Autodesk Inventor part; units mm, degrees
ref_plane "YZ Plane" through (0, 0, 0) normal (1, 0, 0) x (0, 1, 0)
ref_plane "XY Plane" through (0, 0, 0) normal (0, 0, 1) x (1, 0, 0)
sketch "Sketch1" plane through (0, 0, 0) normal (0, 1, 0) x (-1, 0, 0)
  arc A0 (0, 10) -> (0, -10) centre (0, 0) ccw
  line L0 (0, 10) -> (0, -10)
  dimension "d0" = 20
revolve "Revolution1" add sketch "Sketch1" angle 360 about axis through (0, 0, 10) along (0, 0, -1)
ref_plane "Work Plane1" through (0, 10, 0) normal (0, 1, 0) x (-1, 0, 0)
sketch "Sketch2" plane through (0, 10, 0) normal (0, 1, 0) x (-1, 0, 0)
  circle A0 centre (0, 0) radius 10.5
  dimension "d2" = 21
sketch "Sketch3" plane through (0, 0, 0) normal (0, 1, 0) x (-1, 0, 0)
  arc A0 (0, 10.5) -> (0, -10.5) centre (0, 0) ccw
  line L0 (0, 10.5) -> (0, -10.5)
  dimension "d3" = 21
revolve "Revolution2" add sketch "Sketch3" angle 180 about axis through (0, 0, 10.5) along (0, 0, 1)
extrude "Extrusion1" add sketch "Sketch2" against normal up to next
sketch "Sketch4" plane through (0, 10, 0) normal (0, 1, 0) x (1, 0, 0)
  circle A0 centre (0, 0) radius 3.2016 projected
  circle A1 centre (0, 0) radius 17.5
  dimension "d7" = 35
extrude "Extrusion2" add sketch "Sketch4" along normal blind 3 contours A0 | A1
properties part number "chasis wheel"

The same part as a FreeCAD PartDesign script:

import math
import FreeCAD as App
import Part
import Sketcher
from FreeCAD import Vector

doc = App.newDocument("Part")
body = doc.addObject("PartDesign::Body", "Body")

# Sketch on XZ plane
sketch1 = body.newObject("Sketcher::SketchObject", "Sketch")
sketch1.AttachmentSupport = (doc.getObject("XZ_Plane"), [""])
sketch1.MapMode = "FlatFace"
sketch1.addGeometry([
    Part.LineSegment(Vector(0, -10, 0), Vector(0, 10, 0)),
    Part.ArcOfCircle(Part.Circle(Vector(0, 0, 0), Vector(0, 0, 1), 10), math.radians(-90), math.radians(90)),
], False)
sketch1.addConstraint([
    Sketcher.Constraint("Coincident", 0, 1, 1, 1),
    Sketcher.Constraint("Coincident", 1, 2, 0, 2),
    Sketcher.Constraint("Vertical", 0),
    Sketcher.Constraint("Coincident", 1, 3, -1, 1),
    Sketcher.Constraint("PointOnObject", 0, 1, -2),
    Sketcher.Constraint("Radius", 1, 10.0),
])
revolution = body.newObject("PartDesign::Revolution", "Revolution")
revolution.Profile = sketch1
revolution.ReferenceAxis = (sketch1, ["V_Axis"])
revolution.Angle = 360

# Sketch on XZ plane
sketch2 = body.newObject("Sketcher::SketchObject", "Sketch001")
sketch2.AttachmentSupport = (doc.getObject("XZ_Plane"), [""])
sketch2.MapMode = "FlatFace"
sketch2.addGeometry([
    Part.LineSegment(Vector(0, -10, 0), Vector(0, 10, 0)),
    Part.ArcOfCircle(Part.Circle(Vector(0, 0, 0), Vector(0, 0, 1), 10), math.radians(-90), math.radians(90)),
], False)
sketch2.addConstraint([
    Sketcher.Constraint("Coincident", 0, 1, 1, 1),
    Sketcher.Constraint("Coincident", 1, 2, 0, 2),
    Sketcher.Constraint("Vertical", 0),
    Sketcher.Constraint("Coincident", 1, 3, -1, 1),
    Sketcher.Constraint("PointOnObject", 0, 1, -2),
    Sketcher.Constraint("Radius", 1, 10.5),
])
revolution2 = body.newObject("PartDesign::Revolution", "Revolution001")
revolution2.Profile = sketch2
revolution2.ReferenceAxis = (sketch2, ["V_Axis"])
revolution2.Angle = 180

# Sketch on XZ plane
sketch3 = body.newObject("Sketcher::SketchObject", "Sketch002")
sketch3.AttachmentSupport = (doc.getObject("XZ_Plane"), [""])
sketch3.MapMode = "FlatFace"
sketch3.AttachmentOffset = App.Placement(Vector(0, 0, -10), App.Rotation())
sketch3.addGeometry(Part.Circle(Vector(0, 0, 0), Vector(0, 0, 1), 10), False)
sketch3.addConstraint([
    Sketcher.Constraint("Coincident", 0, 3, -1, 1),
    Sketcher.Constraint("Diameter", 0, 21.0),
])
pad1 = body.newObject("PartDesign::Pad", "Pad")
pad1.Profile = sketch3
pad1.Length = 10

# Sketch on XZ plane
sketch4 = body.newObject("Sketcher::SketchObject", "Sketch003")
sketch4.AttachmentSupport = (doc.getObject("XZ_Plane"), [""])
sketch4.MapMode = "FlatFace"
sketch4.AttachmentOffset = App.Placement(Vector(0, 0, -10), App.Rotation())
sketch4.addGeometry(Part.Circle(Vector(0, 0, 0), Vector(0, 0, 1), 18), False)
sketch4.addConstraint([
    Sketcher.Constraint("Coincident", 0, 3, -1, 1),
    Sketcher.Constraint("Diameter", 0, 35.0),
])
pad2 = body.newObject("PartDesign::Pad", "Pad001")
pad2.Profile = sketch4
pad2.Length = 3
pad2.Reversed = True

doc.recompute()
